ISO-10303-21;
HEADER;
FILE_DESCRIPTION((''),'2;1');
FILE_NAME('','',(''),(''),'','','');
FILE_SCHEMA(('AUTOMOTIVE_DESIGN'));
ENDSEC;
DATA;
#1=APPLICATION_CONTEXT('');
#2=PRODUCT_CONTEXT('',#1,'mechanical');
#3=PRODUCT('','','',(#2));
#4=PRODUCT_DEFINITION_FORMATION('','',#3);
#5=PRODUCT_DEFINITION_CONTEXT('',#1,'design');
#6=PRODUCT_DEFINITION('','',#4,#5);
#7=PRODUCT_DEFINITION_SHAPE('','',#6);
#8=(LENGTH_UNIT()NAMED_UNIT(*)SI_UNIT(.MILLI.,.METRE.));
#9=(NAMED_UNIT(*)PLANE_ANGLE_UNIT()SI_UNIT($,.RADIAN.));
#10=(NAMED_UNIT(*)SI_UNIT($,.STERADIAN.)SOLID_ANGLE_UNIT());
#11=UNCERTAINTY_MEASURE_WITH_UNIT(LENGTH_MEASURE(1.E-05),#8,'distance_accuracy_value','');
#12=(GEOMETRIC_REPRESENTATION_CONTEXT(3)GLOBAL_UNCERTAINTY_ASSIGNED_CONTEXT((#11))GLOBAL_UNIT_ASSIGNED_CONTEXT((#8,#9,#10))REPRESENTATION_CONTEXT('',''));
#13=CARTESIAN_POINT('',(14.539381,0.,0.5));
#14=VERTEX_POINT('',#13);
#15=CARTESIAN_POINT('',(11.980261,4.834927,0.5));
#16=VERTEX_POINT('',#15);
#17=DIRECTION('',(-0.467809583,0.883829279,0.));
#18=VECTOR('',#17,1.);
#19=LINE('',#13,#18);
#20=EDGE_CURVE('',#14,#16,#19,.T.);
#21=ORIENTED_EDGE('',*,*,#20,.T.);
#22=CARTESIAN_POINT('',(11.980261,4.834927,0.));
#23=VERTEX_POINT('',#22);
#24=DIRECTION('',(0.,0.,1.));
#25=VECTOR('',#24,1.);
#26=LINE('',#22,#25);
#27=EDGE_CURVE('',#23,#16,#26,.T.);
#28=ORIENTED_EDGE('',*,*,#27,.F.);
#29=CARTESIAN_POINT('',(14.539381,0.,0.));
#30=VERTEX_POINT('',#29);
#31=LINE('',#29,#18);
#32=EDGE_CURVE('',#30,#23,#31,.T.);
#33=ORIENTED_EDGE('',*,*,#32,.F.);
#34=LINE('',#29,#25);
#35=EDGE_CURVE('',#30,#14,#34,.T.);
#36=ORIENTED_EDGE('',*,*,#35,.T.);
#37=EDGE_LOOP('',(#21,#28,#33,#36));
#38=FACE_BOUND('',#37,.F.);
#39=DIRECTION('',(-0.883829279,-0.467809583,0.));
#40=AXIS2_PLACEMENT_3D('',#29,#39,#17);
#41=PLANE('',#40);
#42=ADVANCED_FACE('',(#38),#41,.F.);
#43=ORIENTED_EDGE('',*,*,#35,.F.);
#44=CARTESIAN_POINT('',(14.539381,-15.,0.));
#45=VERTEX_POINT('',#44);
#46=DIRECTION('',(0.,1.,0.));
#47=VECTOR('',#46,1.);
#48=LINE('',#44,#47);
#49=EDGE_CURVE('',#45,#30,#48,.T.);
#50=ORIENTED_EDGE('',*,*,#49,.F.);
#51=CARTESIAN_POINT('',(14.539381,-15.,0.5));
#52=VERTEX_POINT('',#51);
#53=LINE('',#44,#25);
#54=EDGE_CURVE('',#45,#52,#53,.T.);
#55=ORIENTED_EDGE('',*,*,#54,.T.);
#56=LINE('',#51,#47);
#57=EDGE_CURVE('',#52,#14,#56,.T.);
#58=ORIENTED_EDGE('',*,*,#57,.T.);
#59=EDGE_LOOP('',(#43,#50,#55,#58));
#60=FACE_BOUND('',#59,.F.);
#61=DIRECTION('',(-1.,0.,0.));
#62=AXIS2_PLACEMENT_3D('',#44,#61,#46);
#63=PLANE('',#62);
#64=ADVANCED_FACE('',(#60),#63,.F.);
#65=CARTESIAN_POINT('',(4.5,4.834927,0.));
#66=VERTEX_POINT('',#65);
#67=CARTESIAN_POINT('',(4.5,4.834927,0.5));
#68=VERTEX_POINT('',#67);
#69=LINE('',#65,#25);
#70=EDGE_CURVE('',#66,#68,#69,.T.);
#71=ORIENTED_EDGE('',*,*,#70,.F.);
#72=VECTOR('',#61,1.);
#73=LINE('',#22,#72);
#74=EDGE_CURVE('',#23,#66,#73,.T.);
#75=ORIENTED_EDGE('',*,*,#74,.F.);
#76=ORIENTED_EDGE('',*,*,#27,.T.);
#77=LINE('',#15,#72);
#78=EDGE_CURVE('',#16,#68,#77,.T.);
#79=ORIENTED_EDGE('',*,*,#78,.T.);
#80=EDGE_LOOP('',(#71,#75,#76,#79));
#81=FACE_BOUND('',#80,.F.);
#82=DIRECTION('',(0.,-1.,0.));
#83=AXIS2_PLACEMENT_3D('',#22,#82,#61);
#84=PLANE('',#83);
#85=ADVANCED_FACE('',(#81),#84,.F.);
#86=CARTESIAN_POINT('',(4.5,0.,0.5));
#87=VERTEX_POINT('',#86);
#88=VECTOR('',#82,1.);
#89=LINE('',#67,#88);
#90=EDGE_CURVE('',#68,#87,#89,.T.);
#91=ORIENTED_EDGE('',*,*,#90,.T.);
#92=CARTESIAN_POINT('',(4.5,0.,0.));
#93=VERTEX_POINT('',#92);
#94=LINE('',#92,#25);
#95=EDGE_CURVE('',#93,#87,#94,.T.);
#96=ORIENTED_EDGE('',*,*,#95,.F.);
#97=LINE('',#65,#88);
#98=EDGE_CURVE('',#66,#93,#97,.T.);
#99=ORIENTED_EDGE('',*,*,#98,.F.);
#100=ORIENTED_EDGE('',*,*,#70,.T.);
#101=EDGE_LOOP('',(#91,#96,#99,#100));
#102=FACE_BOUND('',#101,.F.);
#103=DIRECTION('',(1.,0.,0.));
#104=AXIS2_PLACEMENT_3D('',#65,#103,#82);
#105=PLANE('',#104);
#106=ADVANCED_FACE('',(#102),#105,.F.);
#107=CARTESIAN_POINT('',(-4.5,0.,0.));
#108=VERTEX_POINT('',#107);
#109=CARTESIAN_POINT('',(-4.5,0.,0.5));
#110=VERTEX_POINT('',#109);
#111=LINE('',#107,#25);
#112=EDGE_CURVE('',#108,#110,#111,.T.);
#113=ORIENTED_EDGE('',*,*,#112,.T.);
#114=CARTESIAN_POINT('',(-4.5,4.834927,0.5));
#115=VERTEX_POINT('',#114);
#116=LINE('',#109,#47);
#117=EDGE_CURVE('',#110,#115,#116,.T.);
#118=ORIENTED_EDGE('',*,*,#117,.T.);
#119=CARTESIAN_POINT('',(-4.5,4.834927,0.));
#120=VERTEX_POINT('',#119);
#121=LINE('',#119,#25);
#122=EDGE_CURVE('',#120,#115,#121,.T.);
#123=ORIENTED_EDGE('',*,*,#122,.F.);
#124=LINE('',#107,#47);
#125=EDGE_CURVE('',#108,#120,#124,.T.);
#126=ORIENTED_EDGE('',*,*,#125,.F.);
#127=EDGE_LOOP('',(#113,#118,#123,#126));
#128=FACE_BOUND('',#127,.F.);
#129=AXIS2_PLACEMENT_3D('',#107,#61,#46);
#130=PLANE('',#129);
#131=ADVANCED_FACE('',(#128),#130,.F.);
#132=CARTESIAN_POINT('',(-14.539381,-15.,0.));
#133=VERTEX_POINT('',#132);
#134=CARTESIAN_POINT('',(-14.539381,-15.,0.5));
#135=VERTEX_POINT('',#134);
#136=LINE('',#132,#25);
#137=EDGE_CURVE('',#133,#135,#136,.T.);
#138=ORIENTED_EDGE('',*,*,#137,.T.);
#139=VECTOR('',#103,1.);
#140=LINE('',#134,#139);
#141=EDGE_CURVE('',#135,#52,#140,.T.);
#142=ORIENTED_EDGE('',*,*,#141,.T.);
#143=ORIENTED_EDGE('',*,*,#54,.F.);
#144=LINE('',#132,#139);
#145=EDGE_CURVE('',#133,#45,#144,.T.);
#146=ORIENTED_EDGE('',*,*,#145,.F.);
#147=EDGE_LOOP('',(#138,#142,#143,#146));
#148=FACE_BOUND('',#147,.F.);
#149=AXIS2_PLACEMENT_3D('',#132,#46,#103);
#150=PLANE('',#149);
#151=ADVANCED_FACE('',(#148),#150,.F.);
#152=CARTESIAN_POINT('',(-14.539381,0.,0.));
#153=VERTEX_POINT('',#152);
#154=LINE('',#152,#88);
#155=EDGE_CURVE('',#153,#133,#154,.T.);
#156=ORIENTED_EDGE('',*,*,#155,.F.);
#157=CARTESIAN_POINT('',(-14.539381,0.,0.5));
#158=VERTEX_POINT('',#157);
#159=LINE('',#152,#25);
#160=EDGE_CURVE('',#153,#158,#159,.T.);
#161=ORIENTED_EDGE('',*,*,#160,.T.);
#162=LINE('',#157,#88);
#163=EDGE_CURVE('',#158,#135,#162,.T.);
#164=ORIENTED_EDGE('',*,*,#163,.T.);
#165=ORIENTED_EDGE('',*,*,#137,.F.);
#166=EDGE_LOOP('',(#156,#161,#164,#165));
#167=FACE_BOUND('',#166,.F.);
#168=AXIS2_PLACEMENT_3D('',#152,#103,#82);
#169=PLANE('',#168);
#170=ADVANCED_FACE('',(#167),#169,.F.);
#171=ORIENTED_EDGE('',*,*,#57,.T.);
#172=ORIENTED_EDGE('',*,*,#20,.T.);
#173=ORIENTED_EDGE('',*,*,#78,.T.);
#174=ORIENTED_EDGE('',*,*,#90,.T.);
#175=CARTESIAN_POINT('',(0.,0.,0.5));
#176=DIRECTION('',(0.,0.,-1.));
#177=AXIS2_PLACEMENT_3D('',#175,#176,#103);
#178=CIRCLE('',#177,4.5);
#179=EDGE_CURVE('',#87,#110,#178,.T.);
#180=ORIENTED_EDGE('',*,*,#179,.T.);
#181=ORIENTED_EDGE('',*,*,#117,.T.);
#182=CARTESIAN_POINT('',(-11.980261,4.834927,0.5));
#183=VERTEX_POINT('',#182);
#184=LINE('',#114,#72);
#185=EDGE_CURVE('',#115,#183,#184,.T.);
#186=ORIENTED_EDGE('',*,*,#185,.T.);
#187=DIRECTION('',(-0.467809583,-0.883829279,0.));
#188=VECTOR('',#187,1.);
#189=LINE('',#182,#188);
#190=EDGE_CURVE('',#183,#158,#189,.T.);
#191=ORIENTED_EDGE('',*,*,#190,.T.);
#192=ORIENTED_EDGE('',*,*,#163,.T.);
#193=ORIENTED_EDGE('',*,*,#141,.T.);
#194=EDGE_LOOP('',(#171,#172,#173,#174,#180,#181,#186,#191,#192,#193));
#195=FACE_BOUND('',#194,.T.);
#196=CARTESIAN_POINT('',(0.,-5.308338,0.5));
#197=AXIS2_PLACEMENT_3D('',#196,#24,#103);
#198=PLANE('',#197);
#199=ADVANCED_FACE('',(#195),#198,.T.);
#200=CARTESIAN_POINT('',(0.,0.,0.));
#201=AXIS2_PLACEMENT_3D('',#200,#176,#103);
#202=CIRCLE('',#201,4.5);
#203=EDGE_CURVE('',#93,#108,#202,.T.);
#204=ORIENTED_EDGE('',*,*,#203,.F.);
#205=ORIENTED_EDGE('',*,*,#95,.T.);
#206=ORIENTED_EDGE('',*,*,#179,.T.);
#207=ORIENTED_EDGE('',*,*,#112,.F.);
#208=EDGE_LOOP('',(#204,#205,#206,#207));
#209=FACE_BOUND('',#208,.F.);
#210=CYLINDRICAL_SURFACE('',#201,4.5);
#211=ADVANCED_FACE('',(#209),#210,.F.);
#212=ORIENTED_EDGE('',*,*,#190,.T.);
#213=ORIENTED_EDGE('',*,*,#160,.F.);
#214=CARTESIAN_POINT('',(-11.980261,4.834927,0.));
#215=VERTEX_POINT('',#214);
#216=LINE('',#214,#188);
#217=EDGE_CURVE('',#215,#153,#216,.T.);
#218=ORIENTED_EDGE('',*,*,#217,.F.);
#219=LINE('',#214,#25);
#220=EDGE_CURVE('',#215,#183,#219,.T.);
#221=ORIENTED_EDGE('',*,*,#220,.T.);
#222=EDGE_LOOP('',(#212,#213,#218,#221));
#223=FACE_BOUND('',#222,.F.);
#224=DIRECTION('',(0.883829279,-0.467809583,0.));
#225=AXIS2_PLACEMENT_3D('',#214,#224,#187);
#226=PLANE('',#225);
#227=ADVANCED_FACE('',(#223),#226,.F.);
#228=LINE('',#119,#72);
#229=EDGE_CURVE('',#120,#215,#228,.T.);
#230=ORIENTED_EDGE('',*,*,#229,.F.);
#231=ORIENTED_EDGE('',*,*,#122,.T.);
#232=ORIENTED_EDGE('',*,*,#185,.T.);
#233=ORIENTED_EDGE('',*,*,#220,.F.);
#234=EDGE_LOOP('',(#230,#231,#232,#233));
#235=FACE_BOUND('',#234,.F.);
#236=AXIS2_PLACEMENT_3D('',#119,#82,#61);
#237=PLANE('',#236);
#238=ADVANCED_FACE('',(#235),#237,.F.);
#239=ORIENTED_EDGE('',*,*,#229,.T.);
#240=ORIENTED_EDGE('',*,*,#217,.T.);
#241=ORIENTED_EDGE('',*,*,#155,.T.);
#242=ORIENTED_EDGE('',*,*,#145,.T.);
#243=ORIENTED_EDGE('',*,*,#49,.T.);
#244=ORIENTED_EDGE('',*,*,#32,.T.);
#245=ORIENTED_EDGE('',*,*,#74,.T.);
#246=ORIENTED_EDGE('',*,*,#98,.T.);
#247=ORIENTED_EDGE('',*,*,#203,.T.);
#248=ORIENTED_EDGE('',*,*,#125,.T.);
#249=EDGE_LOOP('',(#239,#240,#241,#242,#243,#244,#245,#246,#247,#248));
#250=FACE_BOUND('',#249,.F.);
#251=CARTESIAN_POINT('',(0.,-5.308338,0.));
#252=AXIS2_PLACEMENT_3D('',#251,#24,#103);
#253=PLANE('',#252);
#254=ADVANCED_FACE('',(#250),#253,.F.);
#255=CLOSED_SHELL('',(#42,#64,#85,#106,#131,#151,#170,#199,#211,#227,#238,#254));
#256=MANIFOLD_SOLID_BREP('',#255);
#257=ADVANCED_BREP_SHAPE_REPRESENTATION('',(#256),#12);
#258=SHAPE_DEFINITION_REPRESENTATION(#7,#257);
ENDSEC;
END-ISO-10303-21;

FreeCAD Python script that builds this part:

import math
import FreeCAD as App
import Part
import Sketcher
from FreeCAD import Vector

doc = App.newDocument("Part")
body = doc.addObject("PartDesign::Body", "Body")

sketch1 = body.newObject("Sketcher::SketchObject", "Sketch")
sketch1.AttachmentSupport = (doc.getObject("XY_Plane"), [""])
sketch1.MapMode = "FlatFace"
sketch1.addGeometry([
    Part.ArcOfCircle(Part.Circle(Vector(0, 0, 0), Vector(0, 0, 1), 4.5), math.radians(180), math.radians(360)),
    Part.LineSegment(Vector(-4.5, 0, 0), Vector(-4.5, 4.8, 0)),
    Part.LineSegment(Vector(-4.5, 4.8, 0), Vector(-12, 4.8, 0)),
    Part.LineSegment(Vector(-12, 4.8, 0), Vector(-14.5, 0, 0)),
    Part.LineSegment(Vector(-14.5, 0, 0), Vector(-14.5, -15, 0)),
    Part.LineSegment(Vector(-14.5, -15, 0), Vector(14.5, -15, 0)),
    Part.LineSegment(Vector(14.5, -15, 0), Vector(14.5, 0, 0)),
    Part.LineSegment(Vector(14.5, 0, 0), Vector(12, 4.8, 0)),
    Part.LineSegment(Vector(12, 4.8, 0), Vector(4.5, 4.8, 0)),
    Part.LineSegment(Vector(4.5, 4.8, 0), Vector(4.5, 0, 0)),
], False)
sketch1.addConstraint([
    Sketcher.Constraint("Tangent", 0, 1, 1, 1),
    Sketcher.Constraint("Coincident", 1, 2, 2, 1),
    Sketcher.Constraint("Coincident", 2, 2, 3, 1),
    Sketcher.Constraint("Coincident", 3, 2, 4, 1),
    Sketcher.Constraint("Coincident", 4, 2, 5, 1),
    Sketcher.Constraint("Coincident", 5, 2, 6, 1),
    Sketcher.Constraint("Coincident", 6, 2, 7, 1),
    Sketcher.Constraint("Coincident", 7, 2, 8, 1),
    Sketcher.Constraint("Coincident", 8, 2, 9, 1),
    Sketcher.Constraint("Tangent", 9, 2, 0, 2),
    Sketcher.Constraint("Vertical", 1),
    Sketcher.Constraint("Horizontal", 2),
    Sketcher.Constraint("Vertical", 4),
    Sketcher.Constraint("Horizontal", 5),
    Sketcher.Constraint("Vertical", 6),
    Sketcher.Constraint("Horizontal", 8),
    Sketcher.Constraint("Vertical", 9),
    Sketcher.Constraint("Coincident", 0, 3, -1, 1),
    Sketcher.Constraint("Symmetric", 3, 2, 6, 2, -1, 1),
    Sketcher.Constraint("Symmetric", 2, 2, 7, 2, -2),
    Sketcher.Constraint("PointOnObject", 3, 2, -1),
    Sketcher.Constraint("Radius", 0, 4.5),
    Sketcher.Constraint("DistanceY", 4, 2, 4, 1, 15.0),
    Sketcher.Constraint("DistanceX", 2, 2, 2, 1, 7.480261),
    Sketcher.Constraint("Distance", 3, 5.470431),
    Sketcher.Constraint("DistanceX", 5, 1, 5, 2, 29.078762),
])
pad1 = body.newObject("PartDesign::Pad", "Pad")
pad1.Profile = sketch1
pad1.Length = 0.5

doc.recompute()
